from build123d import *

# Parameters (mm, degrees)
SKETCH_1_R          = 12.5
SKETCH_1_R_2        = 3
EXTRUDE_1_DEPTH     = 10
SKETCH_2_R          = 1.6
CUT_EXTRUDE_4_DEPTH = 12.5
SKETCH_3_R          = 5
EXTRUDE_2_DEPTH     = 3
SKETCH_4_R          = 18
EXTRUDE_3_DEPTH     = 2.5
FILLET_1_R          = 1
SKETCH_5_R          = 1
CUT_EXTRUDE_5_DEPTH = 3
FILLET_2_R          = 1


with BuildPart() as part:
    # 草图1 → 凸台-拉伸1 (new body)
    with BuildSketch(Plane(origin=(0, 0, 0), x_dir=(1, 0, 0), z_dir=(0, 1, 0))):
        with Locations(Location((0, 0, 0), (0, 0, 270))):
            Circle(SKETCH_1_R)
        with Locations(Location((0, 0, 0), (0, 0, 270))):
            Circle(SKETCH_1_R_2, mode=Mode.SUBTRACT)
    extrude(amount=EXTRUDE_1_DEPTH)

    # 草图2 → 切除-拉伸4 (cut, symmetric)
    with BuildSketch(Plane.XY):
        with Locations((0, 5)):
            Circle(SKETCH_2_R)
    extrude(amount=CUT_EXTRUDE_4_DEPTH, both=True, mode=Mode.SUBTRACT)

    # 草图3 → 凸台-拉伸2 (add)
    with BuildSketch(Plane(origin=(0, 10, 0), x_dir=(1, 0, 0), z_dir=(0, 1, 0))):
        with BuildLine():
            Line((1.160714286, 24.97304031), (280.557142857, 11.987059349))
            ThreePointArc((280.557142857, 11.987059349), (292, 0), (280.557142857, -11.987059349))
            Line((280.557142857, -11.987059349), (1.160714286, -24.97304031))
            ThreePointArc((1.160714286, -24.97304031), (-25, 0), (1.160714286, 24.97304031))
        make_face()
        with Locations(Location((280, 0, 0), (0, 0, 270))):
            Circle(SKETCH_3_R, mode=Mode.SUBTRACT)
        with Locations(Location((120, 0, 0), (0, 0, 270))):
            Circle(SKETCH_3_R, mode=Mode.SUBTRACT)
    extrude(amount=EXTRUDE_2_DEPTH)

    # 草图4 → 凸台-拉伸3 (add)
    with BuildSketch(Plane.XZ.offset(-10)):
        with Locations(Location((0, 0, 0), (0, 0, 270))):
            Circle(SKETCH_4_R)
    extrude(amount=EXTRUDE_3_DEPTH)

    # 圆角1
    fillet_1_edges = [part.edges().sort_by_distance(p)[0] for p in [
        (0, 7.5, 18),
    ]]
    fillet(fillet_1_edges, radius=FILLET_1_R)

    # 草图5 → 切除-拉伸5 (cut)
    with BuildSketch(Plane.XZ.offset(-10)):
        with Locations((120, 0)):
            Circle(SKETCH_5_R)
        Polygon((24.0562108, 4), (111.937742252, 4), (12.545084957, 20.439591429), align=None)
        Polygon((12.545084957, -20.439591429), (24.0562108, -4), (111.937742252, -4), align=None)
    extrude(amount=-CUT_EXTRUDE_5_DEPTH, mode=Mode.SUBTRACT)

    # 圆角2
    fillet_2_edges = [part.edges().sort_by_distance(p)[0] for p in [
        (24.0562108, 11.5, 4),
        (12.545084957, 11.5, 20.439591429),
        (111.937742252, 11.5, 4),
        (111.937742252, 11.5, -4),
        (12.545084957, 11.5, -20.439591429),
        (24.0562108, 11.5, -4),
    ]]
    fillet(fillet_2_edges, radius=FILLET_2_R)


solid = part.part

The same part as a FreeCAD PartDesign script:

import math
import FreeCAD as App
import Part
import Sketcher

V = App.Vector
Q = App.Units.Quantity


def edges_at(feature, points):
    """Names of the edges that pass closest to the given points."""
    edges = feature.Shape.Edges
    near = lambda p: min(range(len(edges)), key=lambda i: edges[i].distToShape(Part.Vertex(*p))[0])
    return sorted({f"Edge{near(p) + 1}" for p in points})


def add_polygon(sketch, points):
    """Adds a closed chain of lines whose ends are joined by coincident constraints."""
    first, n = sketch.GeometryCount, len(points)
    for a, b in zip(points, points[1:] + points[:1]):
        sketch.addGeometry(Part.LineSegment(App.Vector(*a, 0), App.Vector(*b, 0)), False)
    for i in range(n):
        sketch.addConstraint(Sketcher.Constraint("Coincident", first + i, 2, first + (i + 1) % n, 1))

doc = App.newDocument("Part")
body = doc.addObject("PartDesign::Body", "Body")

# Sketch on XZ plane
sketch1 = body.newObject("Sketcher::SketchObject", "Sketch")
sketch1.AttachmentSupport = (doc.getObject("XZ_Plane"), [""])
sketch1.MapMode = "FlatFace"
sketch1.addGeometry([
    Part.Circle(V(0, 0, 0), V(0, 0, 1), 12.5),
    Part.Circle(V(0, 0, 0), V(0, 0, 1), 3),
], False)
sketch1.addConstraint([
    Sketcher.Constraint("Coincident", 0, 3, -1, 1),
    Sketcher.Constraint("Coincident", 1, 3, -1, 1),
    Sketcher.Constraint("Diameter", 0, 25.0),
    Sketcher.Constraint("Diameter", 1, 6.0),
])
pad1 = body.newObject("PartDesign::Pad", "Pad")
pad1.Profile = sketch1
pad1.Length = 10
pad1.Reversed = True

# Sketch on XY plane
sketch2 = body.newObject("Sketcher::SketchObject", "Sketch001")
sketch2.AttachmentSupport = (doc.getObject("XY_Plane"), [""])
sketch2.MapMode = "FlatFace"
sketch2.addGeometry(Part.Circle(V(0, 5, 0), V(0, 0, 1), 1.6), False)
sketch2.addConstraint([
    Sketcher.Constraint("PointOnObject", 0, 3, -2),
    Sketcher.Constraint("Diameter", 0, 3.2),
    Sketcher.Constraint("DistanceY", -1, 1, 0, 3, 5.0),
])
pocket1 = body.newObject("PartDesign::Pocket", "Pocket")
pocket1.Profile = sketch2
pocket1.Length = 25
pocket1.Midplane = True

# Sketch on XZ plane
sketch3 = body.newObject("Sketcher::SketchObject", "Sketch002")
sketch3.AttachmentSupport = (doc.getObject("XZ_Plane"), [""])
sketch3.MapMode = "FlatFace"
sketch3.AttachmentOffset = App.Placement(V(0, 0, -10), App.Rotation())
sketch3.addGeometry([
    Part.LineSegment(V(281, -12, 0), V(1, -25, 0)),  # 0
    Part.ArcOfCircle(Part.Circle(V(0, 0, 0), V(0, 0, 1), 25), math.radians(87), math.radians(273)),  # 1
    Part.LineSegment(V(1, 25, 0), V(281, 12, 0)),  # 2
    Part.ArcOfCircle(Part.Circle(V(280, 0, 0), V(0, 0, 1), 12), math.radians(-87), math.radians(87)),  # 3
    Part.Circle(V(280, 0, 0), V(0, 0, 1), 5),  # 4
    Part.Circle(V(120, 0, 0), V(0, 0, 1), 5),  # 5
], False)
sketch3.addConstraint([
    Sketcher.Constraint("Tangent", 0, 2, 1, 2),
    Sketcher.Constraint("Tangent", 1, 1, 2, 1),
    Sketcher.Constraint("Tangent", 2, 2, 3, 2),
    Sketcher.Constraint("Tangent", 3, 1, 0, 1),
    Sketcher.Constraint("Coincident", 1, 3, -1, 1),
    Sketcher.Constraint("Coincident", 4, 3, 3, 3),
    Sketcher.Constraint("Equal", 4, 5),
    Sketcher.Constraint("PointOnObject", 3, 3, -1),
    Sketcher.Constraint("PointOnObject", 5, 3, -1),
    Sketcher.Constraint("Diameter", 4, 10.0),
    Sketcher.Constraint("Radius", 1, 25.0),
    Sketcher.Constraint("Radius", 3, 12.0),
    Sketcher.Constraint("DistanceX", -1, 1, 3, 3, 280.0),
    Sketcher.Constraint("DistanceX", -1, 1, 5, 3, 120.0),
])
pad2 = body.newObject("PartDesign::Pad", "Pad001")
pad2.Profile = sketch3
pad2.Length = 3
pad2.Reversed = True

# Sketch on XZ plane
sketch4 = body.newObject("Sketcher::SketchObject", "Sketch003")
sketch4.AttachmentSupport = (doc.getObject("XZ_Plane"), [""])
sketch4.MapMode = "FlatFace"
sketch4.AttachmentOffset = App.Placement(V(0, 0, -10), App.Rotation())
sketch4.addGeometry(Part.Circle(V(0, 0, 0), V(0, 0, 1), 18), False)
sketch4.addConstraint([
    Sketcher.Constraint("Coincident", 0, 3, -1, 1),
    Sketcher.Constraint("Diameter", 0, 36.0),
])
pad3 = body.newObject("PartDesign::Pad", "Pad002")
pad3.Profile = sketch4
pad3.Length = 2.5
doc.recompute()

fillet = body.newObject("PartDesign::Fillet", "Fillet")
fillet.Base = (pad3, edges_at(pad3, [(0, 7.5, 18)]))
fillet.Radius = 1

# Sketch on XZ plane
sketch5 = body.newObject("Sketcher::SketchObject", "Sketch004")
sketch5.AttachmentSupport = (doc.getObject("XZ_Plane"), [""])
sketch5.MapMode = "FlatFace"
sketch5.AttachmentOffset = App.Placement(V(0, 0, -10), App.Rotation())
sketch5.addGeometry(Part.Circle(V(120, 0, 0), V(0, 0, 1), 1), False)  # 0
add_polygon(sketch5, [(24.1, 4), (111.9, 4), (12.5, 20.4)])  # lines 1-3
add_polygon(sketch5, [(24.1, -4), (12.5, -20.4), (111.9, -4)])  # lines 4-6
sketch5.addConstraint([
    Sketcher.Constraint("Horizontal", 1),
    Sketcher.Constraint("Horizontal", 6),
    Sketcher.Constraint("Symmetric", 2, 2, 4, 2, -1),
    Sketcher.Constraint("Symmetric", 1, 2, 5, 2, -1),
    Sketcher.Constraint("PointOnObject", 0, 3, -1),
    Sketcher.Constraint("Vertical", 3, 2, 6, 2),
    Sketcher.Constraint("Diameter", 0, 2.0),
    Sketcher.Constraint("Angle", 3, Q("-55 deg")),
    Sketcher.Constraint("DistanceX", -1, 1, 0, 3, 120.0),
    Sketcher.Constraint("DistanceY", -1, 1, 1, 2, 4.0),
    Sketcher.Constraint("DistanceX", 1, 1, 1, 2, 87.881531),
    Sketcher.Constraint("Distance", 2, 100.743042),
    Sketcher.Constraint("DistanceX", -1, 1, 3, 2, 24.056211),
])
pocket2 = body.newObject("PartDesign::Pocket", "Pocket001")
pocket2.Profile = sketch5
pocket2.Length = 3
doc.recompute()

fillet2 = body.newObject("PartDesign::Fillet", "Fillet001")
fillet2.Base = (pocket2, edges_at(pocket2, [
    (24.056, 11.5, 4),
    (12.545, 11.5, 20.44),
    (111.938, 11.5, 4),
    (111.938, 11.5, -4),
    (12.545, 11.5, -20.44),
    (24.056, 11.5, -4),
]))
fillet2.Radius = 1

doc.recompute()
